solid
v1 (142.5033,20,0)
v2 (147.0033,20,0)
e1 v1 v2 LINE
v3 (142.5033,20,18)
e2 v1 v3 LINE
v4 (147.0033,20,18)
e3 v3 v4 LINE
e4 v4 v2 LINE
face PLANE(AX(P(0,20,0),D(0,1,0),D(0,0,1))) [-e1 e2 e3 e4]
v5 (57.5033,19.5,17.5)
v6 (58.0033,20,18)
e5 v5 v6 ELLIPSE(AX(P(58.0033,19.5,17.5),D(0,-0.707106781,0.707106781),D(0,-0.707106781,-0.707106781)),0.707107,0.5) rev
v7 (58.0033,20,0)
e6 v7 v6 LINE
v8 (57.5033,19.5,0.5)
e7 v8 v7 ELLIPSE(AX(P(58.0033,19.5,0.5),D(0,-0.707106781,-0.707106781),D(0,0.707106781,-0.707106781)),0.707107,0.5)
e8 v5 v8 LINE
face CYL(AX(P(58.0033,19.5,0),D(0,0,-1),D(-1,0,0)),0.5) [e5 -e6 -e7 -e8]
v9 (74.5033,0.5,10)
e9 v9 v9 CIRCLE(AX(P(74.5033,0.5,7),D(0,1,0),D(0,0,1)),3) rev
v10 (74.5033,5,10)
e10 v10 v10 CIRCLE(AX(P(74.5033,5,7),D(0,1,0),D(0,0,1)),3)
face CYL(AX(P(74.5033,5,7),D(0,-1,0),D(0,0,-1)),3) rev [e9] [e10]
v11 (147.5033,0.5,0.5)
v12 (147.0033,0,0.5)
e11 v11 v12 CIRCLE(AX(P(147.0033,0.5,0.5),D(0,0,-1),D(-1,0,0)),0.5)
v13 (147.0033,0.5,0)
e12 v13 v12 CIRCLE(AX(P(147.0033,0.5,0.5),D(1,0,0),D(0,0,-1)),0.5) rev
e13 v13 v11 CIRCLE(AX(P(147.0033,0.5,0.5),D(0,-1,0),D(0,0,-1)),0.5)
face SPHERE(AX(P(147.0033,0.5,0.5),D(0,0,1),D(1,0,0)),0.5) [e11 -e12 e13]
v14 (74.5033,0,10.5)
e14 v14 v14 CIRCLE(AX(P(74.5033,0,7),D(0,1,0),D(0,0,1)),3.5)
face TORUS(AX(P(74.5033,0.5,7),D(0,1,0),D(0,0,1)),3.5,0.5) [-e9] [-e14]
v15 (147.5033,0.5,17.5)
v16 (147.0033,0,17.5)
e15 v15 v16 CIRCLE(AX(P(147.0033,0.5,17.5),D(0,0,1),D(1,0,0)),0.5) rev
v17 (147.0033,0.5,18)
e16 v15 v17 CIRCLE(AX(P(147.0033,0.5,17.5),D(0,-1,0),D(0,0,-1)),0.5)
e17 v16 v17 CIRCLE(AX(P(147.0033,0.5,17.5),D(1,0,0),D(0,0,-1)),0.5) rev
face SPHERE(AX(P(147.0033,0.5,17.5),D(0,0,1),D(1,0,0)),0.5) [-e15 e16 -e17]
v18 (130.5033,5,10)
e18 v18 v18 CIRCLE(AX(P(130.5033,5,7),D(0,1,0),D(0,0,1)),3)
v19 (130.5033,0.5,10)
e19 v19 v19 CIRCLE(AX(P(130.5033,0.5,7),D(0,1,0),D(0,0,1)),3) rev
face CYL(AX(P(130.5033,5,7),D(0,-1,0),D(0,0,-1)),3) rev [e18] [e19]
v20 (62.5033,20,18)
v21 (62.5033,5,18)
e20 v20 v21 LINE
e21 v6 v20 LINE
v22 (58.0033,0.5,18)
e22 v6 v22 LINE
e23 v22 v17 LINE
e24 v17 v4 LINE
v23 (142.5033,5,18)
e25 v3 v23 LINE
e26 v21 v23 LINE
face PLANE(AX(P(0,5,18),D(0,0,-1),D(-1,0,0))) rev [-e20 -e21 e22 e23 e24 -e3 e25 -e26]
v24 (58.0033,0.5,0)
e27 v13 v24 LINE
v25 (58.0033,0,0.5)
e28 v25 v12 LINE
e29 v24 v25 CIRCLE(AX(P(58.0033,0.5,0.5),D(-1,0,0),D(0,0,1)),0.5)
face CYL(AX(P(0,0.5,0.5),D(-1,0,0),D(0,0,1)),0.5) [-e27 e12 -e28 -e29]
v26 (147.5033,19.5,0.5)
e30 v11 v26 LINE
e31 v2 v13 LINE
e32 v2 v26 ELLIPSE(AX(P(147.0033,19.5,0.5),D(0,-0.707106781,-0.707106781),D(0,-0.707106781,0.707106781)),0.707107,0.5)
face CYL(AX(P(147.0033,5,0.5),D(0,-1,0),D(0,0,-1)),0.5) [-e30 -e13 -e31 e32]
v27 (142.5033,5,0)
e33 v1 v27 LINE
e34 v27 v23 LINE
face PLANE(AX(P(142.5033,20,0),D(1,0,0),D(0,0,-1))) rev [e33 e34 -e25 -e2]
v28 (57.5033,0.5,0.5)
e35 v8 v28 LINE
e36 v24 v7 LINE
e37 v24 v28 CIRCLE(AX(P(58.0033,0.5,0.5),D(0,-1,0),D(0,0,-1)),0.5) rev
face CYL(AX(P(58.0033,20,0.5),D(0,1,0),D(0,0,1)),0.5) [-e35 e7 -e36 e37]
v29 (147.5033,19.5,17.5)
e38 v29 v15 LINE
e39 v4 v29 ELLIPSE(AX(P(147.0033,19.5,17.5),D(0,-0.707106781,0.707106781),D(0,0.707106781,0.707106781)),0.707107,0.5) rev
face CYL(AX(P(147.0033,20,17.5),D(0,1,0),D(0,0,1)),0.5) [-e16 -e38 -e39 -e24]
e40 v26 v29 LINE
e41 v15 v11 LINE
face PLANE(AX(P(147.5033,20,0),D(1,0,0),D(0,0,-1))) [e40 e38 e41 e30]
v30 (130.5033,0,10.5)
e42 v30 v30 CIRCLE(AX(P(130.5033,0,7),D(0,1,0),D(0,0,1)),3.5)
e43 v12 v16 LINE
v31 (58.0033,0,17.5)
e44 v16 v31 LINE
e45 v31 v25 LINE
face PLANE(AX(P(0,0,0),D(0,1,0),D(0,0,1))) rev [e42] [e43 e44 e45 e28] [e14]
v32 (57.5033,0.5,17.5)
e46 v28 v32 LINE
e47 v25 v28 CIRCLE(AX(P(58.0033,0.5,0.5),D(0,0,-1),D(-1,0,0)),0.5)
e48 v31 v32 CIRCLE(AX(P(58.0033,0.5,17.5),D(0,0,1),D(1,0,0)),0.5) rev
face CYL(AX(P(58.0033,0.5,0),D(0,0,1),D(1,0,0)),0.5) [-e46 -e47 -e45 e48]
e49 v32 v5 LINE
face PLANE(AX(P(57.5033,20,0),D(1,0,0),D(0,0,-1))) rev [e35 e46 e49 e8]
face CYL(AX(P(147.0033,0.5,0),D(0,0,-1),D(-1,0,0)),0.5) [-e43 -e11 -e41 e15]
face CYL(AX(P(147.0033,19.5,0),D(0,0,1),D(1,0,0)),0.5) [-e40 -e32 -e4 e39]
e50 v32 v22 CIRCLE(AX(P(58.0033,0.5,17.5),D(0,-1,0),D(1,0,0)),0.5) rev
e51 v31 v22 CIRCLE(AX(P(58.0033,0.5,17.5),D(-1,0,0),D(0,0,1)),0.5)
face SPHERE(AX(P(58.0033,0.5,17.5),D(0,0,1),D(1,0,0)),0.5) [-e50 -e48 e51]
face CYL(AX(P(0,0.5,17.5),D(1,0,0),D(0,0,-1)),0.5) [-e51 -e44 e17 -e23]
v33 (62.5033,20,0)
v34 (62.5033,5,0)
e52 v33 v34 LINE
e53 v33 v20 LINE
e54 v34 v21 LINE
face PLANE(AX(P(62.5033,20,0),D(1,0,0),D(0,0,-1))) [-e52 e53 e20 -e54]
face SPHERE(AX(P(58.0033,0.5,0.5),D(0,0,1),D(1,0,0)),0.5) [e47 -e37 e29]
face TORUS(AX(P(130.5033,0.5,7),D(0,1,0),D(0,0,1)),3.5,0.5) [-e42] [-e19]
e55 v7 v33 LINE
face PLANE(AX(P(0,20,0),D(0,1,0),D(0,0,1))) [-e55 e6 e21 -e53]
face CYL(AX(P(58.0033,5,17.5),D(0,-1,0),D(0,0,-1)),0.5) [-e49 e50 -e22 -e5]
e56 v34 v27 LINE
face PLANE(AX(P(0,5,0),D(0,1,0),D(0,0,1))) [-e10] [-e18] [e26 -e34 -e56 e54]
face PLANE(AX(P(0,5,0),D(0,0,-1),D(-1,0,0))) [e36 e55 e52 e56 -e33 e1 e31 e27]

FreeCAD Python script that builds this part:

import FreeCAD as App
import Part
import Sketcher
Q = App.Units.Quantity


def edges_at(feature, points):
    """Names of the edges that pass closest to the given points."""
    edges = feature.Shape.Edges
    near = lambda p: min(range(len(edges)), key=lambda i: edges[i].distToShape(Part.Vertex(*p))[0])
    return sorted({f"Edge{near(p) + 1}" for p in points})

doc = App.newDocument("Part")
body = doc.addObject("PartDesign::Body", "Body")

# Sketch on XZ plane
sketch1 = body.newObject("Sketcher::SketchObject", "Sketch")
sketch1.AttachmentSupport = (doc.getObject("XZ_Plane"), [""])
sketch1.MapMode = "FlatFace"
sketch1.addGeometry(Part.LineSegment(App.Vector(62.5, 0, 0), App.Vector(62.5, 18, 0)), False)
sketch1.addGeometry(Part.LineSegment(App.Vector(62.5, 18, 0), App.Vector(142.5, 18, 0)), False)
sketch1.addGeometry(Part.LineSegment(App.Vector(142.5, 18, 0), App.Vector(142.5, 0, 0)), False)
sketch1.addGeometry(Part.LineSegment(App.Vector(142.5, 0, 0), App.Vector(62.5, 0, 0)), False)
sketch1.addGeometry(Part.Circle(App.Vector(74.5, 7, 0), App.Vector(0, 0, 1), 3), False)
sketch1.addGeometry(Part.Circle(App.Vector(130.5, 7, 0), App.Vector(0, 0, 1), 3), False)
sketch1.addConstraint(Sketcher.Constraint("Coincident", 0, 2, 1, 1))
sketch1.addConstraint(Sketcher.Constraint("Coincident", 1, 2, 2, 1))
sketch1.addConstraint(Sketcher.Constraint("Coincident", 2, 2, 3, 1))
sketch1.addConstraint(Sketcher.Constraint("Coincident", 3, 2, 0, 1))
sketch1.addConstraint(Sketcher.Constraint("Vertical", 0))
sketch1.addConstraint(Sketcher.Constraint("Horizontal", 1))
sketch1.addConstraint(Sketcher.Constraint("Vertical", 2))
sketch1.addConstraint(Sketcher.Constraint("Horizontal", 3))
sketch1.addConstraint(Sketcher.Constraint("Equal", 4, 5))
sketch1.addConstraint(Sketcher.Constraint("PointOnObject", 2, 2, -1))
sketch1.addConstraint(Sketcher.Constraint("Horizontal", 4, 3, 5, 3))
sketch1.addConstraint(Sketcher.Constraint("Diameter", 4, Q("6 mm")))
sketch1.addConstraint(Sketcher.Constraint("DistanceX", 1, 1, 1, 2, Q("80 mm")))
sketch1.addConstraint(Sketcher.Constraint("DistanceY", 0, 1, 0, 2, Q("18 mm")))
sketch1.addConstraint(Sketcher.Constraint("DistanceY", -1, 1, 4, 3, Q("7 mm")))
sketch1.addConstraint(Sketcher.Constraint("DistanceX", 4, 3, 5, 3, Q("56 mm")))
sketch1.addConstraint(Sketcher.Constraint("DistanceX", 0, 2, 4, 3, Q("12 mm")))
sketch1.addConstraint(Sketcher.Constraint("DistanceX", -1, 1, 4, 3, Q("74.5033 mm")))
pad1 = body.newObject("PartDesign::Pad", "Pad")
pad1.Profile = sketch1
pad1.Length = 5
pad1.Reversed = True

# Sketch on XZ plane
sketch2 = body.newObject("Sketcher::SketchObject", "Sketch001")
sketch2.AttachmentSupport = (doc.getObject("XZ_Plane"), [""])
sketch2.MapMode = "FlatFace"
sketch2.addGeometry(Part.LineSegment(App.Vector(58, 0, 0), App.Vector(58, 18, 0)), False)
sketch2.addGeometry(Part.LineSegment(App.Vector(58, 18, 0), App.Vector(63, 18, 0)), False)
sketch2.addGeometry(Part.LineSegment(App.Vector(63, 18, 0), App.Vector(63, 0, 0)), False)
sketch2.addGeometry(Part.LineSegment(App.Vector(63, 0, 0), App.Vector(58, 0, 0)), False)
sketch2.addGeometry(Part.LineSegment(App.Vector(143, 0, 0), App.Vector(143, 18, 0)), False)
sketch2.addGeometry(Part.LineSegment(App.Vector(143, 18, 0), App.Vector(148, 18, 0)), False)
sketch2.addGeometry(Part.LineSegment(App.Vector(148, 18, 0), App.Vector(148, 0, 0)), False)
sketch2.addGeometry(Part.LineSegment(App.Vector(148, 0, 0), App.Vector(143, 0, 0)), False)
sketch2.addConstraint(Sketcher.Constraint("Coincident", 0, 2, 1, 1))
sketch2.addConstraint(Sketcher.Constraint("Coincident", 1, 2, 2, 1))
sketch2.addConstraint(Sketcher.Constraint("Coincident", 2, 2, 3, 1))
sketch2.addConstraint(Sketcher.Constraint("Coincident", 3, 2, 0, 1))
sketch2.addConstraint(Sketcher.Constraint("Coincident", 4, 2, 5, 1))
sketch2.addConstraint(Sketcher.Constraint("Coincident", 5, 2, 6, 1))
sketch2.addConstraint(Sketcher.Constraint("Coincident", 6, 2, 7, 1))
sketch2.addConstraint(Sketcher.Constraint("Coincident", 7, 2, 4, 1))
sketch2.addConstraint(Sketcher.Constraint("Vertical", 0))
sketch2.addConstraint(Sketcher.Constraint("Horizontal", 1))
sketch2.addConstraint(Sketcher.Constraint("Vertical", 2))
sketch2.addConstraint(Sketcher.Constraint("Horizontal", 3))
sketch2.addConstraint(Sketcher.Constraint("Vertical", 4))
sketch2.addConstraint(Sketcher.Constraint("Horizontal", 5))
sketch2.addConstraint(Sketcher.Constraint("Vertical", 6))
sketch2.addConstraint(Sketcher.Constraint("Horizontal", 7))
sketch2.addConstraint(Sketcher.Constraint("PointOnObject", 2, 2, -1))
sketch2.addConstraint(Sketcher.Constraint("PointOnObject", 6, 2, -1))
sketch2.addConstraint(Sketcher.Constraint("Horizontal", 1, 2, 4, 2))
sketch2.addConstraint(Sketcher.Constraint("Equal", 3, 5))
sketch2.addConstraint(Sketcher.Constraint("DistanceX", 1, 1, 1, 2, Q("5 mm")))
sketch2.addConstraint(Sketcher.Constraint("DistanceY", 0, 1, 0, 2, Q("18 mm")))
sketch2.addConstraint(Sketcher.Constraint("DistanceX", 1, 2, 4, 2, Q("80 mm")))
sketch2.addConstraint(Sketcher.Constraint("DistanceX", -1, 1, 0, 2, Q("57.5033 mm")))
pad2 = body.newObject("PartDesign::Pad", "Pad001")
pad2.Profile = sketch2
pad2.Length = 20
pad2.Reversed = True
doc.recompute()

fillet = body.newObject("PartDesign::Fillet", "Fillet")
fillet.Base = (pad2, edges_at(pad2, [
    (74.503, 0, 4),
    (130.503, 0, 4),
    (57.503, 0, 9),
    (57.503, 10, 0),
    (57.503, 10, 18),
    (57.503, 20, 9),
    (147.503, 20, 9),
    (147.503, 10, 18),
    (147.503, 10, 0),
    (147.503, 0, 9),
    (102.503, 0, 18),
    (102.503, 0, 0),
]))
fillet.Radius = 0.5

doc.recompute()
